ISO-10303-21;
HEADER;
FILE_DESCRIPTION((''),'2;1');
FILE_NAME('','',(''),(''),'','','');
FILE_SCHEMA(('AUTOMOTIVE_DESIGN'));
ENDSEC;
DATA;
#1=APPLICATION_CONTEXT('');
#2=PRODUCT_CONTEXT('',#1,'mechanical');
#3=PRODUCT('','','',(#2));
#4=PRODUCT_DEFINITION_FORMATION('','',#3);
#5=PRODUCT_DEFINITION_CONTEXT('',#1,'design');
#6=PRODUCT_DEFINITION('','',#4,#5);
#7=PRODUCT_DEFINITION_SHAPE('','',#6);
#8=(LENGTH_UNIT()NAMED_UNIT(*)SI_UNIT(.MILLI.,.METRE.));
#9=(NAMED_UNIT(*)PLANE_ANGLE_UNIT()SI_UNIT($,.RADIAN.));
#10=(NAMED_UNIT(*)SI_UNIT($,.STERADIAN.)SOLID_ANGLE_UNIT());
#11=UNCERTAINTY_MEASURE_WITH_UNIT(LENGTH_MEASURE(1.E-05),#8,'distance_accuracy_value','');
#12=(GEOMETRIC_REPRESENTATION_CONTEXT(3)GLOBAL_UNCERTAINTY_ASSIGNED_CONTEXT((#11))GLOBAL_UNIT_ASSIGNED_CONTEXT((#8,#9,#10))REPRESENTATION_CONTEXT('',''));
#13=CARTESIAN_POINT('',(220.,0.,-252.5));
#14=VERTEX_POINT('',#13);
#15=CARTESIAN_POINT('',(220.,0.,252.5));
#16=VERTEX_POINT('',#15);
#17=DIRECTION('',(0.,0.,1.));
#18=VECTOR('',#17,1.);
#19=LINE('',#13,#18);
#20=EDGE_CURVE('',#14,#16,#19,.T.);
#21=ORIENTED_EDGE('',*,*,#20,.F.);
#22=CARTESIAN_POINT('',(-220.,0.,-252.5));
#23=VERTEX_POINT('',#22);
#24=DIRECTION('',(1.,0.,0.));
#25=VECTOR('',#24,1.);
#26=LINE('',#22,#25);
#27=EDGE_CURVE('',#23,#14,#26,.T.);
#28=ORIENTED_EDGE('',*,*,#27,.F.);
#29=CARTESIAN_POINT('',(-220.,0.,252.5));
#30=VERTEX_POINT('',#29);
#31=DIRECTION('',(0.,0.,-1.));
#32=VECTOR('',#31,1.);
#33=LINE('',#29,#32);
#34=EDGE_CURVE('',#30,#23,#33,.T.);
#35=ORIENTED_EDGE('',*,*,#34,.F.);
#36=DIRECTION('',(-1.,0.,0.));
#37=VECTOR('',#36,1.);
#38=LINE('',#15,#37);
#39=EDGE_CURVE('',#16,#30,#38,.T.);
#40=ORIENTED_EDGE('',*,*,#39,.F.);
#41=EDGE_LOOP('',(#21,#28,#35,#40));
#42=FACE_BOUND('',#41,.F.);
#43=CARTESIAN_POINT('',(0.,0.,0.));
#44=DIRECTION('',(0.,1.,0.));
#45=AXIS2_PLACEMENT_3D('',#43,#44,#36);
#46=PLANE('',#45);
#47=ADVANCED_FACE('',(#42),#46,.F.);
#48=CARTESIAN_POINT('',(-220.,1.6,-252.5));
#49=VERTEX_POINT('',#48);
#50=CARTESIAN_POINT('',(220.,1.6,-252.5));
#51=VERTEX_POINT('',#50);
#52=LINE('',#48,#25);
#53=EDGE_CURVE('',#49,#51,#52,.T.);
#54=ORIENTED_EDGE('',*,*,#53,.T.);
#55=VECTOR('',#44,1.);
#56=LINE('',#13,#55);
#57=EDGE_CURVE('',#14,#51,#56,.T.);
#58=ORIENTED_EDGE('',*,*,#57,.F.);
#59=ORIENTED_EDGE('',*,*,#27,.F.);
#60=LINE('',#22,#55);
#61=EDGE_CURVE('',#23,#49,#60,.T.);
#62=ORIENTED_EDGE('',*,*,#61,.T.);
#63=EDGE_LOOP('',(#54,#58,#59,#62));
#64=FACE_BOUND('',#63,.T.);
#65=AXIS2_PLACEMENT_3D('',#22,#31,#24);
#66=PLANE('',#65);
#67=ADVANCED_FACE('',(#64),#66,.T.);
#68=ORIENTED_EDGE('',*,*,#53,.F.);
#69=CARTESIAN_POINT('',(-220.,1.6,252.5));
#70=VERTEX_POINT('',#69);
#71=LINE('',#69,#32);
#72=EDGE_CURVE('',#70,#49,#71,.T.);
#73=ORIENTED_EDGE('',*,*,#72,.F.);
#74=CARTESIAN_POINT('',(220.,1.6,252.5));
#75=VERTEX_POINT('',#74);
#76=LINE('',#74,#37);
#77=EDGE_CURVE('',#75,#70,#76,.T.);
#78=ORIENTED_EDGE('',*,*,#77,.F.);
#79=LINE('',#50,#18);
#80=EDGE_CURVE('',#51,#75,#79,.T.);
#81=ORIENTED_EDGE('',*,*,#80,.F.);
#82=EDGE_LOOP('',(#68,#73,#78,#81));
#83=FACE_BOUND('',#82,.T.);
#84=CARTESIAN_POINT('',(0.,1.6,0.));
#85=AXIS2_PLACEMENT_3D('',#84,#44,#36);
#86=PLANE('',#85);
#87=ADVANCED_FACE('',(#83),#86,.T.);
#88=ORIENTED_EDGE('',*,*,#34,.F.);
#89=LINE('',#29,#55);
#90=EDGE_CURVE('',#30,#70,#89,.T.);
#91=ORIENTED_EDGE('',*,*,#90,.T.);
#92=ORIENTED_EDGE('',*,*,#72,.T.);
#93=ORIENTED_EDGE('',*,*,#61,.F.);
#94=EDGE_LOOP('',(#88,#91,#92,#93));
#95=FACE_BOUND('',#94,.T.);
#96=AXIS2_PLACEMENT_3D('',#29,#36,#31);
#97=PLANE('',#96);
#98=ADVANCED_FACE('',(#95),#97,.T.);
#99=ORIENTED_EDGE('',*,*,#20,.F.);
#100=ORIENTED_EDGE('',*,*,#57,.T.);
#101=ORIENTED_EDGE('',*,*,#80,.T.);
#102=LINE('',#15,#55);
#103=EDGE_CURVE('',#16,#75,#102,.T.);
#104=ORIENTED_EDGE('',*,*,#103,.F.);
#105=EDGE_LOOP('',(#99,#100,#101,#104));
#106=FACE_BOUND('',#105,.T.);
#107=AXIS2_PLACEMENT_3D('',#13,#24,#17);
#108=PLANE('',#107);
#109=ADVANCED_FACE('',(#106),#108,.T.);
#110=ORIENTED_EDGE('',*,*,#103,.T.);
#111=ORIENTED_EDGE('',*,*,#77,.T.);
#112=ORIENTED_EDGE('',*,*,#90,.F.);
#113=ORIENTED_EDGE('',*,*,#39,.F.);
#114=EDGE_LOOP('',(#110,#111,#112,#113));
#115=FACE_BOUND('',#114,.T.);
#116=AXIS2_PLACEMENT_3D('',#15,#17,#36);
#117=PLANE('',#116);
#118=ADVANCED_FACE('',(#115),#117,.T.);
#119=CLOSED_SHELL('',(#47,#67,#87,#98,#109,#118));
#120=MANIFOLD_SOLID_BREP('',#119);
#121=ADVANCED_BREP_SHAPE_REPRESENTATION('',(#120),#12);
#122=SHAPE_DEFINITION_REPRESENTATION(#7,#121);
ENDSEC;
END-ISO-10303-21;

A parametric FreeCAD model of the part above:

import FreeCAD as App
import Part
import Sketcher

doc = App.newDocument("Part")
body = doc.addObject("PartDesign::Body", "Body")

sketch1 = body.newObject("Sketcher::SketchObject", "Sketch")
sketch1.AttachmentSupport = (doc.getObject("XZ_Plane"), [""])
sketch1.MapMode = "FlatFace"
sketch1.addGeometry([
    Part.LineSegment(App.Vector(-220, 252, 0), App.Vector(220, 252, 0)),
    Part.LineSegment(App.Vector(220, 252, 0), App.Vector(220, -252, 0)),
    Part.LineSegment(App.Vector(220, -252, 0), App.Vector(-220, -252, 0)),
    Part.LineSegment(App.Vector(-220, -252, 0), App.Vector(-220, 252, 0)),
], False)
sketch1.addConstraint([
    Sketcher.Constraint("Coincident", 0, 2, 1, 1),
    Sketcher.Constraint("Coincident", 1, 2, 2, 1),
    Sketcher.Constraint("Coincident", 2, 2, 3, 1),
    Sketcher.Constraint("Coincident", 3, 2, 0, 1),
    Sketcher.Constraint("Horizontal", 0),
    Sketcher.Constraint("Vertical", 1),
    Sketcher.Constraint("Horizontal", 2),
    Sketcher.Constraint("Vertical", 3),
    Sketcher.Constraint("Symmetric", 0, 2, 2, 2, -1, 1),
    Sketcher.Constraint("DistanceX", 0, 1, 0, 2, 440.0),
    Sketcher.Constraint("DistanceY", 1, 2, 1, 1, 505.0),
])
pad1 = body.newObject("PartDesign::Pad", "Pad")
pad1.Profile = sketch1
pad1.Length = 1.6
pad1.Reversed = True

doc.recompute()
